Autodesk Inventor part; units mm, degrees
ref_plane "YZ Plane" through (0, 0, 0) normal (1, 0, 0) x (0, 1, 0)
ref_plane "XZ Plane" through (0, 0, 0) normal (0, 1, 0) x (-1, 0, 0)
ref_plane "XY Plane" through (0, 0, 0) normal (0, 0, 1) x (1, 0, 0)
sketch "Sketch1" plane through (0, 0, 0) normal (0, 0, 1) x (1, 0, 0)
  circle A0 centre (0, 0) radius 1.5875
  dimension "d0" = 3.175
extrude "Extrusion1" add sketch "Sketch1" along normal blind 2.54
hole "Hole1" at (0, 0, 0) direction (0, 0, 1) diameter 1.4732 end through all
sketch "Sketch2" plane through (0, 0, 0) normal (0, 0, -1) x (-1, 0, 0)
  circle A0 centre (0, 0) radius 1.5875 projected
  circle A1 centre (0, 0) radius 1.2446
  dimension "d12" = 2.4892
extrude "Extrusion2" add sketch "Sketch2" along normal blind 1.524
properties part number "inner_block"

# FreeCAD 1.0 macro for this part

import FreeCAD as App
import Part
import Sketcher
from FreeCAD import Vector
Q = App.Units.Quantity

doc = App.newDocument("Part")
params = doc.addObject("Spreadsheet::Sheet", "Params")
for row, (alias, value) in enumerate([
    ("sketch1_diameter", "0.125 in"),
    ("pad1_length", "0.1 in"),
    ("sketch2_diameter", "0.058 in"),
    ("hole_diameter", "0.058 in"),
    ("sketch3_diameter", "0.098 in"),
    ("sketch3_diameter2", "0.125 in"),
    ("pad2_length", "0.06 in"),
], start=1):
    params.set(f"A{row}", alias)
    params.set(f"B{row}", "=" + value)
    params.setAlias(f"B{row}", alias)

body = doc.addObject("PartDesign::Body", "Body")

sketch1 = doc.addObject("Sketcher::SketchObject", "Sketch")
body.addObject(sketch1)
sketch1.AttachmentSupport = (doc.XY_Plane, [""])
sketch1.MapMode = "FlatFace"
sketch1.addGeometry(Part.Circle(Vector(0, 0, 0), Vector(0, 0, 1), 1.5875), False)
sketch1.addConstraint([
    Sketcher.Constraint("Coincident", 0, 3, -1, 1),
    Sketcher.Constraint("Diameter", 0, Q("0.125 in")),
])
sketch1.setExpression("Constraints[1]", "Params.sketch1_diameter")
pad1 = doc.addObject("PartDesign::Pad", "Pad")
body.addObject(pad1)
pad1.Profile = sketch1
pad1.setExpression("Length", "Params.pad1_length")

sketch2 = doc.addObject("Sketcher::SketchObject", "Sketch001")
body.addObject(sketch2)
sketch2.AttachmentSupport = (doc.XY_Plane, [""])
sketch2.MapMode = "FlatFace"
sketch2.addGeometry(Part.Circle(Vector(0, 0, 0), Vector(0, 0, 1), 0.7366), False)
sketch2.addConstraint([
    Sketcher.Constraint("Coincident", 0, 3, -1, 1),
    Sketcher.Constraint("Diameter", 0, Q("0.058 in")),
])
sketch2.setExpression("Constraints[1]", "Params.sketch2_diameter")
doc.recompute()
hole = doc.addObject("PartDesign::Hole", "Hole")
body.addObject(hole)
hole.Profile = sketch2
hole.ThreadType = "None"
hole.setExpression("Diameter", "Params.hole_diameter")
hole.DepthType = "ThroughAll"
hole.Reversed = True

sketch3 = doc.addObject("Sketcher::SketchObject", "Sketch002")
body.addObject(sketch3)
sketch3.AttachmentSupport = (doc.XY_Plane, [""])
sketch3.MapMode = "FlatFace"
sketch3.addGeometry([
    Part.Circle(Vector(0, 0, 0), Vector(0, 0, 1), 1.5875),
    Part.Circle(Vector(0, 0, 0), Vector(0, 0, 1), 1.2446),
], False)
sketch3.addConstraint([
    Sketcher.Constraint("Coincident", 0, 3, -1, 1),
    Sketcher.Constraint("Coincident", 1, 3, -1, 1),
    Sketcher.Constraint("Diameter", 1, Q("0.098 in")),
    Sketcher.Constraint("Diameter", 0, Q("0.125 in")),
])
sketch3.setExpression("Constraints[2]", "Params.sketch3_diameter")
sketch3.setExpression("Constraints[3]", "Params.sketch3_diameter2")
pad2 = doc.addObject("PartDesign::Pad", "Pad001")
body.addObject(pad2)
pad2.Profile = sketch3
pad2.setExpression("Length", "Params.pad2_length")
pad2.Reversed = True

doc.recompute()
